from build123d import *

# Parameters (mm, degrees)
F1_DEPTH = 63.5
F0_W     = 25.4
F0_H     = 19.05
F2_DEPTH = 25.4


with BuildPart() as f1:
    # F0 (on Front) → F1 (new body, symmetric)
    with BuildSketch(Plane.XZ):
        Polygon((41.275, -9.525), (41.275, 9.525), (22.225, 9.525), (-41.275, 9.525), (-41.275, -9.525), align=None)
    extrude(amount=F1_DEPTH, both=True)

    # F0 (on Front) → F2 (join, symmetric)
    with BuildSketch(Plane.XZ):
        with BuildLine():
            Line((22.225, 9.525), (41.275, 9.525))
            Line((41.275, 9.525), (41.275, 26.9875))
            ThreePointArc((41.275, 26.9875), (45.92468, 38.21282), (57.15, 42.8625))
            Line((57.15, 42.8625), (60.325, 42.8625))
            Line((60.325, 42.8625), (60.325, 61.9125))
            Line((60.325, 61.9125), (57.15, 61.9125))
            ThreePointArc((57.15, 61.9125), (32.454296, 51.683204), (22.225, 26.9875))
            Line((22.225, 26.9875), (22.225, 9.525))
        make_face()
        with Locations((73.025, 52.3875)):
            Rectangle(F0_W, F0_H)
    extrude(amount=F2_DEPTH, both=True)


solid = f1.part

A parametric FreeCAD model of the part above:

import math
import FreeCAD as App
import Part
import Sketcher
Q = App.Units.Quantity


def add_polygon(sketch, points):
    """Adds a closed chain of lines whose ends are joined by coincident constraints."""
    first, n = sketch.GeometryCount, len(points)
    for a, b in zip(points, points[1:] + points[:1]):
        sketch.addGeometry(Part.LineSegment(App.Vector(*a, 0), App.Vector(*b, 0)), False)
    for i in range(n):
        sketch.addConstraint(Sketcher.Constraint("Coincident", first + i, 2, first + (i + 1) % n, 1))

doc = App.newDocument("Part")
params = doc.addObject("Spreadsheet::Sheet", "Params")
for row, (alias, value) in enumerate([
    ("sketch1_width", "3.25 in"),
    ("sketch1_height", "0.75 in"),
    ("pad1_length", "5 in"),
    ("sketch2_radius", "0.625 in"),
    ("sketch2_radius2", "1.375 in"),
    ("sketch2_width", "1.125 in"),
    ("sketch2_height", "0.6875 in"),
    ("pad2_length", "2 in"),
], start=1):
    params.set(f"A{row}", alias)
    params.set(f"B{row}", "=" + value)
    params.setAlias(f"B{row}", alias)

body = doc.addObject("PartDesign::Body", "Body")

# Sketch on XZ plane
sketch1 = doc.addObject("Sketcher::SketchObject", "Sketch")
body.addObject(sketch1)
sketch1.AttachmentSupport = (doc.XZ_Plane, [""])
sketch1.MapMode = "FlatFace"
add_polygon(sketch1, [(41, -10), (41, 10), (-41, 10), (-41, -10)])  # lines 0-3
sketch1.addConstraint([
    Sketcher.Constraint("Vertical", 0),
    Sketcher.Constraint("Horizontal", 1),
    Sketcher.Constraint("Vertical", 2),
    Sketcher.Constraint("Horizontal", 3),
    Sketcher.Constraint("Symmetric", 0, 2, 2, 2, -1, 1),
    Sketcher.Constraint("DistanceX", 1, 2, 1, 1, Q("3.25 in")),
    Sketcher.Constraint("DistanceY", 0, 1, 0, 2, Q("0.75 in")),
])
sketch1.setExpression("Constraints[9]", "Params.sketch1_width")
sketch1.setExpression("Constraints[10]", "Params.sketch1_height")
pad1 = doc.addObject("PartDesign::Pad", "Pad")
body.addObject(pad1)
pad1.Profile = sketch1
pad1.setExpression("Length", "Params.pad1_length")
pad1.Midplane = True

# Sketch on XZ plane
sketch2 = doc.addObject("Sketcher::SketchObject", "Sketch001")
body.addObject(sketch2)
sketch2.AttachmentSupport = (doc.XZ_Plane, [""])
sketch2.MapMode = "FlatFace"
sketch2.addGeometry([
    Part.LineSegment(App.Vector(22, 10, 0), App.Vector(41, 10, 0)),  # 0
    Part.LineSegment(App.Vector(41, 10, 0), App.Vector(41, 27, 0)),  # 1
    Part.ArcOfCircle(Part.Circle(App.Vector(57, 27, 0), App.Vector(0, 0, 1), 16), math.radians(90), math.radians(180)),  # 2
    Part.LineSegment(App.Vector(57, 43, 0), App.Vector(86, 43, 0)),  # 3
    Part.LineSegment(App.Vector(86, 43, 0), App.Vector(86, 62, 0)),  # 4
    Part.LineSegment(App.Vector(86, 62, 0), App.Vector(57, 62, 0)),  # 5
    Part.ArcOfCircle(Part.Circle(App.Vector(57, 27, 0), App.Vector(0, 0, 1), 35), math.radians(90), math.radians(180)),  # 6
    Part.LineSegment(App.Vector(22, 27, 0), App.Vector(22, 10, 0)),  # 7
], False)
sketch2.addConstraint([
    Sketcher.Constraint("Coincident", 0, 2, 1, 1),
    Sketcher.Constraint("Tangent", 1, 2, 2, 2),
    Sketcher.Constraint("Tangent", 2, 1, 3, 1),
    Sketcher.Constraint("Coincident", 3, 2, 4, 1),
    Sketcher.Constraint("Coincident", 4, 2, 5, 1),
    Sketcher.Constraint("Tangent", 5, 2, 6, 1),
    Sketcher.Constraint("Tangent", 6, 2, 7, 1),
    Sketcher.Constraint("Coincident", 7, 2, 0, 1),
    Sketcher.Constraint("Horizontal", 0),
    Sketcher.Constraint("Vertical", 1),
    Sketcher.Constraint("Horizontal", 3),
    Sketcher.Constraint("Vertical", 4),
    Sketcher.Constraint("Horizontal", 5),
    Sketcher.Constraint("Vertical", 7),
    Sketcher.Constraint("Coincident", 6, 3, 2, 3),
    Sketcher.Constraint("Radius", 2, Q("0.625 in")),
    Sketcher.Constraint("Radius", 6, Q("1.375 in")),
    Sketcher.Constraint("DistanceX", 3, 1, 3, 2, Q("1.125 in")),
    Sketcher.Constraint("DistanceY", 1, 1, 1, 2, Q("0.6875 in")),
    Sketcher.Constraint("DistanceX", -1, 1, 2, 3, Q("2.25 in")),
    Sketcher.Constraint("DistanceY", -1, 1, 2, 3, Q("1.0625 in")),
])
sketch2.setExpression("Constraints[15]", "Params.sketch2_radius")
sketch2.setExpression("Constraints[16]", "Params.sketch2_radius2")
sketch2.setExpression("Constraints[17]", "Params.sketch2_width")
sketch2.setExpression("Constraints[18]", "Params.sketch2_height")
pad2 = doc.addObject("PartDesign::Pad", "Pad001")
body.addObject(pad2)
pad2.Profile = sketch2
pad2.setExpression("Length", "Params.pad2_length")
pad2.Midplane = True

doc.recompute()
